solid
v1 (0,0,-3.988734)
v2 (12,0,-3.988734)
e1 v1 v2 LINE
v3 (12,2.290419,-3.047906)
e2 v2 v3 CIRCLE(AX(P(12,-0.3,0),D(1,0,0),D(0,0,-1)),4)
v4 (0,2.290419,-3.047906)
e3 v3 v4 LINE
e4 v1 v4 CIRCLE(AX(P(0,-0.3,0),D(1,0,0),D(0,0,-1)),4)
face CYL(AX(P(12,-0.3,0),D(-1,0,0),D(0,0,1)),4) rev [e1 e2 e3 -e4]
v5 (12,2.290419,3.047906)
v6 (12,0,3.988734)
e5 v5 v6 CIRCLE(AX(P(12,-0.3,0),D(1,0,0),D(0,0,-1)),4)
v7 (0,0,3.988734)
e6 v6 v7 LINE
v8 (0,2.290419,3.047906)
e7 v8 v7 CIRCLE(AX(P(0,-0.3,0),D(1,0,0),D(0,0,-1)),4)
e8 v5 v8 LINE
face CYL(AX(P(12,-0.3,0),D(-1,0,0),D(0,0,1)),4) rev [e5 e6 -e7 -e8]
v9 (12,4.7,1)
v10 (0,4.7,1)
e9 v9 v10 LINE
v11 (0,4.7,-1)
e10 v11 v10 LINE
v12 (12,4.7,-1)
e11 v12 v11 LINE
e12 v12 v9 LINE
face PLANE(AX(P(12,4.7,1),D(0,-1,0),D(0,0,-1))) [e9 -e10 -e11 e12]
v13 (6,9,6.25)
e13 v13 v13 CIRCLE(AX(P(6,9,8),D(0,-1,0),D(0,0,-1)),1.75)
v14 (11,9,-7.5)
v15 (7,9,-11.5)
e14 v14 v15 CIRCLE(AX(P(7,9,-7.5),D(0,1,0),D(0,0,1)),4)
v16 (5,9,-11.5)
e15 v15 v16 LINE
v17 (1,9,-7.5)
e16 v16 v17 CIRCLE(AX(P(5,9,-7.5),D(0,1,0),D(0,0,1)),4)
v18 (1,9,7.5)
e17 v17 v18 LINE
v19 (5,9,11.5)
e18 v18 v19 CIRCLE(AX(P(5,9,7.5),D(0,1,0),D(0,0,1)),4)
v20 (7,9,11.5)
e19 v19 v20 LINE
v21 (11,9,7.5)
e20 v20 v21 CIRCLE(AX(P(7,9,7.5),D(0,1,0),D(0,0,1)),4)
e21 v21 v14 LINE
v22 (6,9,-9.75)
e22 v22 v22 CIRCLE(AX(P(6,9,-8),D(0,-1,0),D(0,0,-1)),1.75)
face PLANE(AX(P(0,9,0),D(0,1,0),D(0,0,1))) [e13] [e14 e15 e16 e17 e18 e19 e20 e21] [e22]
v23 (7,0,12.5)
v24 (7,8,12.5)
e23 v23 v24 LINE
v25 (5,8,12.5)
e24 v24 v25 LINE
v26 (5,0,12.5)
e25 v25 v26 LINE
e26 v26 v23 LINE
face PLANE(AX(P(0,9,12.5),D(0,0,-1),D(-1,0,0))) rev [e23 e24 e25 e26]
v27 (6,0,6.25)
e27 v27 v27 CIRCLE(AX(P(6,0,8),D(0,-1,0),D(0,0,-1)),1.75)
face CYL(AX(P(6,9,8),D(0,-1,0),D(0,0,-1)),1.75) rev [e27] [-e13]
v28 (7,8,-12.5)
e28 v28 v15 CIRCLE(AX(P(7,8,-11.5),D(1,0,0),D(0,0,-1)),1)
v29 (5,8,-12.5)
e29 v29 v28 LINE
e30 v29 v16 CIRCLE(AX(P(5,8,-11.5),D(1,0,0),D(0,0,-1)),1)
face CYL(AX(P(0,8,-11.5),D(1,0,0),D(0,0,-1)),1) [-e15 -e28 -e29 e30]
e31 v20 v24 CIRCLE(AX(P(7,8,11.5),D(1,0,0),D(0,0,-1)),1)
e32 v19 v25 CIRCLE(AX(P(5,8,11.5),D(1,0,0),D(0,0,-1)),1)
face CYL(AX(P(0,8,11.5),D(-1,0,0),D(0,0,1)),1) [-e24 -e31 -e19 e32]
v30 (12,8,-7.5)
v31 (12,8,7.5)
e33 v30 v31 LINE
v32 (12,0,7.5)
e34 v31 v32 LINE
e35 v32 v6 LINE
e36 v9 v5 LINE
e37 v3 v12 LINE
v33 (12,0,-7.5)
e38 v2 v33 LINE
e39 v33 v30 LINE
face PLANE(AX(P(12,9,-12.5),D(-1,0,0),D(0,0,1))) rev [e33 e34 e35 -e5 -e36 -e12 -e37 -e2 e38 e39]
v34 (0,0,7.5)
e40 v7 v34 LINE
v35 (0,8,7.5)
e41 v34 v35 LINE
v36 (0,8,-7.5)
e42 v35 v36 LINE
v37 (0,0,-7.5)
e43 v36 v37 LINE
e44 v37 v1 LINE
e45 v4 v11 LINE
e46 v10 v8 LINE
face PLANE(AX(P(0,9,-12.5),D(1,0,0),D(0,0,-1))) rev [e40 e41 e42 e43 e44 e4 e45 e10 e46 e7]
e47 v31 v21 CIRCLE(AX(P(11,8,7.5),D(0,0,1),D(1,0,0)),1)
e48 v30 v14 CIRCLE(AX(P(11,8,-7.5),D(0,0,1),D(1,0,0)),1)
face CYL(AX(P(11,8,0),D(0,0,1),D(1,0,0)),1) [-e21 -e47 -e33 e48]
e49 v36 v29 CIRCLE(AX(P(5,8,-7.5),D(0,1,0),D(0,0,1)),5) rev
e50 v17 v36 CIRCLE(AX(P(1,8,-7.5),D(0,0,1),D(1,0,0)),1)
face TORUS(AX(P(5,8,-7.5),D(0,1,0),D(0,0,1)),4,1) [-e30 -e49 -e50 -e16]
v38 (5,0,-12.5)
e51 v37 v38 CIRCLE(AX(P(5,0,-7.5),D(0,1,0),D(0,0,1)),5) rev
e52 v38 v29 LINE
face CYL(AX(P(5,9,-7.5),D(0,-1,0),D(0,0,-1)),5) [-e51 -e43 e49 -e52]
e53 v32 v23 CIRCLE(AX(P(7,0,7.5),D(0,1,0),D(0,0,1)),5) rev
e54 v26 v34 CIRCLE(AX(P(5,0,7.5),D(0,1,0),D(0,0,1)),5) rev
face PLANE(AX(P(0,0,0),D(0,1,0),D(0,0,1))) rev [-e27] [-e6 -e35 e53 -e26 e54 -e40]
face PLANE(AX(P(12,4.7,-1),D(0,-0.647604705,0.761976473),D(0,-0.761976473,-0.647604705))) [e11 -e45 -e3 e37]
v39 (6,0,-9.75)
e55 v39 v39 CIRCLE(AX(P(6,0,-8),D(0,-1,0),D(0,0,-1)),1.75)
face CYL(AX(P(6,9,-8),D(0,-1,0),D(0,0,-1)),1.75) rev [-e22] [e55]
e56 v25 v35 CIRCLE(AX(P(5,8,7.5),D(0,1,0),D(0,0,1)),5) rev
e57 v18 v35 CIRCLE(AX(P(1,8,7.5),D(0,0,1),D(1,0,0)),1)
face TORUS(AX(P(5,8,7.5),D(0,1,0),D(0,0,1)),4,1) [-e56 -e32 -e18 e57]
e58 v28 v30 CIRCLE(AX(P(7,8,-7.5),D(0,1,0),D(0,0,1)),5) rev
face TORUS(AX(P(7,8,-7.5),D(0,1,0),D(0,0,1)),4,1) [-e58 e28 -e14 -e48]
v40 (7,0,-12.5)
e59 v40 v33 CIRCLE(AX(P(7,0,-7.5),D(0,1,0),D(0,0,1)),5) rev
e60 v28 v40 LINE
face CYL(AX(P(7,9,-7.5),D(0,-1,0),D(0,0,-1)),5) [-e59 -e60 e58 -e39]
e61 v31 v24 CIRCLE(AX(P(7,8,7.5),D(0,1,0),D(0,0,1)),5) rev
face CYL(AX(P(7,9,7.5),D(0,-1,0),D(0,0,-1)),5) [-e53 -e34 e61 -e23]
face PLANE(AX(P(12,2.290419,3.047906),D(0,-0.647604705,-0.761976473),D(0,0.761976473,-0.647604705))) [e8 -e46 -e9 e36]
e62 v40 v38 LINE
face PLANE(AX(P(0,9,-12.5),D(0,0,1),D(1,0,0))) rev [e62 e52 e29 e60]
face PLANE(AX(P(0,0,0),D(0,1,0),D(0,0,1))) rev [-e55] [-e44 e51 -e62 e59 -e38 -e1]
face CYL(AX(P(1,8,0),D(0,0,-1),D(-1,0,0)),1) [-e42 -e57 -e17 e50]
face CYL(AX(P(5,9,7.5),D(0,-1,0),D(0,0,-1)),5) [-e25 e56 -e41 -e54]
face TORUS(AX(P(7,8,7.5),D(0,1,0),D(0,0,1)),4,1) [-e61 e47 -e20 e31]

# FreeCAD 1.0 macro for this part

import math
import FreeCAD as App
import Part
import Sketcher

V = App.Vector
Q = App.Units.Quantity


def edges_at(feature, points):
    """Names of the edges that pass closest to the given points."""
    edges = feature.Shape.Edges
    near = lambda p: min(range(len(edges)), key=lambda i: edges[i].distToShape(Part.Vertex(*p))[0])
    return sorted({f"Edge{near(p) + 1}" for p in points})

doc = App.newDocument("Part")
body = doc.addObject("PartDesign::Body", "Body")

sketch1 = body.newObject("Sketcher::SketchObject", "Sketch")
sketch1.AttachmentSupport = (doc.getObject("XZ_Plane"), [""])
sketch1.MapMode = "FlatFace"
sketch1.addGeometry(Part.LineSegment(V(0, -12.5, 0), V(0, 12.5, 0)), False)
sketch1.addGeometry(Part.LineSegment(V(0, 12.5, 0), V(12, 12.5, 0)), False)
sketch1.addGeometry(Part.LineSegment(V(12, 12.5, 0), V(12, -12.5, 0)), False)
sketch1.addGeometry(Part.LineSegment(V(12, -12.5, 0), V(0, -12.5, 0)), False)
sketch1.addConstraint(Sketcher.Constraint("Coincident", 0, 2, 1, 1))
sketch1.addConstraint(Sketcher.Constraint("Coincident", 1, 2, 2, 1))
sketch1.addConstraint(Sketcher.Constraint("Coincident", 2, 2, 3, 1))
sketch1.addConstraint(Sketcher.Constraint("Coincident", 3, 2, 0, 1))
sketch1.addConstraint(Sketcher.Constraint("Vertical", 0))
sketch1.addConstraint(Sketcher.Constraint("Horizontal", 1))
sketch1.addConstraint(Sketcher.Constraint("Vertical", 2))
sketch1.addConstraint(Sketcher.Constraint("Horizontal", 3))
sketch1.addConstraint(Sketcher.Constraint("Symmetric", 0, 2, 3, 2, -1, 1))
sketch1.addConstraint(Sketcher.Constraint("DistanceX", 1, 1, 1, 2, Q("12 mm")))
sketch1.addConstraint(Sketcher.Constraint("DistanceY", 0, 1, 0, 2, Q("25 mm")))
pad1 = body.newObject("PartDesign::Pad", "Pad")
pad1.Profile = sketch1
pad1.Length = 9
pad1.Reversed = True

sketch2 = body.newObject("Sketcher::SketchObject", "Sketch001")
sketch2.AttachmentSupport = (doc.getObject("YZ_Plane"), [""])
sketch2.MapMode = "FlatFace"
sketch2.addGeometry(Part.LineSegment(V(4.7, 1, 0), V(2.290419, 3.047906, 0)), False)
sketch2.addGeometry(Part.ArcOfCircle(Part.Circle(V(-0.3, 0, 0), V(0, 0, 1), 4), math.radians(49.638751), math.radians(310.361249)), False)
sketch2.addGeometry(Part.LineSegment(V(2.290419, -3.047906, 0), V(4.7, -1, 0)), False)
sketch2.addGeometry(Part.LineSegment(V(4.7, -1, 0), V(4.7, 1, 0)), False)
sketch2.addConstraint(Sketcher.Constraint("Tangent", 0, 2, 1, 1))
sketch2.addConstraint(Sketcher.Constraint("Tangent", 1, 2, 2, 1))
sketch2.addConstraint(Sketcher.Constraint("Coincident", 2, 2, 3, 1))
sketch2.addConstraint(Sketcher.Constraint("Coincident", 3, 2, 0, 1))
sketch2.addConstraint(Sketcher.Constraint("Vertical", 3))
sketch2.addConstraint(Sketcher.Constraint("Symmetric", 0, 2, 1, 2, -1))
sketch2.addConstraint(Sketcher.Constraint("Radius", 1, Q("4 mm")))
sketch2.addConstraint(Sketcher.Constraint("DistanceY", 3, 1, 3, 2, Q("2 mm")))
sketch2.addConstraint(Sketcher.Constraint("DistanceX", 1, 3, 2, 2, Q("5 mm")))
sketch2.addConstraint(Sketcher.Constraint("DistanceX", 1, 3, -1, 1, Q("0.3 mm")))
pocket1 = body.newObject("PartDesign::Pocket", "Pocket")
pocket1.Profile = sketch2
pocket1.Type = "ThroughAll"
pocket1.Reversed = True

sketch3 = body.newObject("Sketcher::SketchObject", "Sketch002")
sketch3.AttachmentSupport = (doc.getObject("XZ_Plane"), [""])
sketch3.MapMode = "FlatFace"
sketch3.addGeometry(Part.Circle(V(6, 8, 0), V(0, 0, 1), 1.75), False)
sketch3.addGeometry(Part.Circle(V(6, -8, 0), V(0, 0, 1), 1.75), False)
sketch3.addConstraint(Sketcher.Constraint("Equal", 0, 1))
sketch3.addConstraint(Sketcher.Constraint("Symmetric", 0, 3, 1, 3, -1))
sketch3.addConstraint(Sketcher.Constraint("Diameter", 0, Q("3.5 mm")))
sketch3.addConstraint(Sketcher.Constraint("DistanceX", -1, 1, 0, 3, Q("6 mm")))
sketch3.addConstraint(Sketcher.Constraint("DistanceY", -1, 1, 0, 3, Q("8 mm")))
pocket2 = body.newObject("PartDesign::Pocket", "Pocket001")
pocket2.Profile = sketch3
pocket2.Type = "ThroughAll"
doc.recompute()

fillet = body.newObject("PartDesign::Fillet", "Fillet")
fillet.Base = (pocket2, edges_at(pocket2, [
    (0, 4.5, -12.5),
    (12, 4.5, -12.5),
    (12, 4.5, 12.5),
    (0, 4.5, 12.5),
]))
fillet.Radius = 5
doc.recompute()

fillet2 = body.newObject("PartDesign::Fillet", "Fillet001")
fillet2.Base = (fillet, edges_at(fillet, [
    (0, 9, 0),
    (6, 9, -12.5),
    (6, 9, 12.5),
    (12, 9, 0),
    (1.464, 9, 11.036),
    (10.536, 9, 11.036),
    (10.536, 9, -11.036),
    (1.464, 9, -11.036),
]))
fillet2.Radius = 1

doc.recompute()
